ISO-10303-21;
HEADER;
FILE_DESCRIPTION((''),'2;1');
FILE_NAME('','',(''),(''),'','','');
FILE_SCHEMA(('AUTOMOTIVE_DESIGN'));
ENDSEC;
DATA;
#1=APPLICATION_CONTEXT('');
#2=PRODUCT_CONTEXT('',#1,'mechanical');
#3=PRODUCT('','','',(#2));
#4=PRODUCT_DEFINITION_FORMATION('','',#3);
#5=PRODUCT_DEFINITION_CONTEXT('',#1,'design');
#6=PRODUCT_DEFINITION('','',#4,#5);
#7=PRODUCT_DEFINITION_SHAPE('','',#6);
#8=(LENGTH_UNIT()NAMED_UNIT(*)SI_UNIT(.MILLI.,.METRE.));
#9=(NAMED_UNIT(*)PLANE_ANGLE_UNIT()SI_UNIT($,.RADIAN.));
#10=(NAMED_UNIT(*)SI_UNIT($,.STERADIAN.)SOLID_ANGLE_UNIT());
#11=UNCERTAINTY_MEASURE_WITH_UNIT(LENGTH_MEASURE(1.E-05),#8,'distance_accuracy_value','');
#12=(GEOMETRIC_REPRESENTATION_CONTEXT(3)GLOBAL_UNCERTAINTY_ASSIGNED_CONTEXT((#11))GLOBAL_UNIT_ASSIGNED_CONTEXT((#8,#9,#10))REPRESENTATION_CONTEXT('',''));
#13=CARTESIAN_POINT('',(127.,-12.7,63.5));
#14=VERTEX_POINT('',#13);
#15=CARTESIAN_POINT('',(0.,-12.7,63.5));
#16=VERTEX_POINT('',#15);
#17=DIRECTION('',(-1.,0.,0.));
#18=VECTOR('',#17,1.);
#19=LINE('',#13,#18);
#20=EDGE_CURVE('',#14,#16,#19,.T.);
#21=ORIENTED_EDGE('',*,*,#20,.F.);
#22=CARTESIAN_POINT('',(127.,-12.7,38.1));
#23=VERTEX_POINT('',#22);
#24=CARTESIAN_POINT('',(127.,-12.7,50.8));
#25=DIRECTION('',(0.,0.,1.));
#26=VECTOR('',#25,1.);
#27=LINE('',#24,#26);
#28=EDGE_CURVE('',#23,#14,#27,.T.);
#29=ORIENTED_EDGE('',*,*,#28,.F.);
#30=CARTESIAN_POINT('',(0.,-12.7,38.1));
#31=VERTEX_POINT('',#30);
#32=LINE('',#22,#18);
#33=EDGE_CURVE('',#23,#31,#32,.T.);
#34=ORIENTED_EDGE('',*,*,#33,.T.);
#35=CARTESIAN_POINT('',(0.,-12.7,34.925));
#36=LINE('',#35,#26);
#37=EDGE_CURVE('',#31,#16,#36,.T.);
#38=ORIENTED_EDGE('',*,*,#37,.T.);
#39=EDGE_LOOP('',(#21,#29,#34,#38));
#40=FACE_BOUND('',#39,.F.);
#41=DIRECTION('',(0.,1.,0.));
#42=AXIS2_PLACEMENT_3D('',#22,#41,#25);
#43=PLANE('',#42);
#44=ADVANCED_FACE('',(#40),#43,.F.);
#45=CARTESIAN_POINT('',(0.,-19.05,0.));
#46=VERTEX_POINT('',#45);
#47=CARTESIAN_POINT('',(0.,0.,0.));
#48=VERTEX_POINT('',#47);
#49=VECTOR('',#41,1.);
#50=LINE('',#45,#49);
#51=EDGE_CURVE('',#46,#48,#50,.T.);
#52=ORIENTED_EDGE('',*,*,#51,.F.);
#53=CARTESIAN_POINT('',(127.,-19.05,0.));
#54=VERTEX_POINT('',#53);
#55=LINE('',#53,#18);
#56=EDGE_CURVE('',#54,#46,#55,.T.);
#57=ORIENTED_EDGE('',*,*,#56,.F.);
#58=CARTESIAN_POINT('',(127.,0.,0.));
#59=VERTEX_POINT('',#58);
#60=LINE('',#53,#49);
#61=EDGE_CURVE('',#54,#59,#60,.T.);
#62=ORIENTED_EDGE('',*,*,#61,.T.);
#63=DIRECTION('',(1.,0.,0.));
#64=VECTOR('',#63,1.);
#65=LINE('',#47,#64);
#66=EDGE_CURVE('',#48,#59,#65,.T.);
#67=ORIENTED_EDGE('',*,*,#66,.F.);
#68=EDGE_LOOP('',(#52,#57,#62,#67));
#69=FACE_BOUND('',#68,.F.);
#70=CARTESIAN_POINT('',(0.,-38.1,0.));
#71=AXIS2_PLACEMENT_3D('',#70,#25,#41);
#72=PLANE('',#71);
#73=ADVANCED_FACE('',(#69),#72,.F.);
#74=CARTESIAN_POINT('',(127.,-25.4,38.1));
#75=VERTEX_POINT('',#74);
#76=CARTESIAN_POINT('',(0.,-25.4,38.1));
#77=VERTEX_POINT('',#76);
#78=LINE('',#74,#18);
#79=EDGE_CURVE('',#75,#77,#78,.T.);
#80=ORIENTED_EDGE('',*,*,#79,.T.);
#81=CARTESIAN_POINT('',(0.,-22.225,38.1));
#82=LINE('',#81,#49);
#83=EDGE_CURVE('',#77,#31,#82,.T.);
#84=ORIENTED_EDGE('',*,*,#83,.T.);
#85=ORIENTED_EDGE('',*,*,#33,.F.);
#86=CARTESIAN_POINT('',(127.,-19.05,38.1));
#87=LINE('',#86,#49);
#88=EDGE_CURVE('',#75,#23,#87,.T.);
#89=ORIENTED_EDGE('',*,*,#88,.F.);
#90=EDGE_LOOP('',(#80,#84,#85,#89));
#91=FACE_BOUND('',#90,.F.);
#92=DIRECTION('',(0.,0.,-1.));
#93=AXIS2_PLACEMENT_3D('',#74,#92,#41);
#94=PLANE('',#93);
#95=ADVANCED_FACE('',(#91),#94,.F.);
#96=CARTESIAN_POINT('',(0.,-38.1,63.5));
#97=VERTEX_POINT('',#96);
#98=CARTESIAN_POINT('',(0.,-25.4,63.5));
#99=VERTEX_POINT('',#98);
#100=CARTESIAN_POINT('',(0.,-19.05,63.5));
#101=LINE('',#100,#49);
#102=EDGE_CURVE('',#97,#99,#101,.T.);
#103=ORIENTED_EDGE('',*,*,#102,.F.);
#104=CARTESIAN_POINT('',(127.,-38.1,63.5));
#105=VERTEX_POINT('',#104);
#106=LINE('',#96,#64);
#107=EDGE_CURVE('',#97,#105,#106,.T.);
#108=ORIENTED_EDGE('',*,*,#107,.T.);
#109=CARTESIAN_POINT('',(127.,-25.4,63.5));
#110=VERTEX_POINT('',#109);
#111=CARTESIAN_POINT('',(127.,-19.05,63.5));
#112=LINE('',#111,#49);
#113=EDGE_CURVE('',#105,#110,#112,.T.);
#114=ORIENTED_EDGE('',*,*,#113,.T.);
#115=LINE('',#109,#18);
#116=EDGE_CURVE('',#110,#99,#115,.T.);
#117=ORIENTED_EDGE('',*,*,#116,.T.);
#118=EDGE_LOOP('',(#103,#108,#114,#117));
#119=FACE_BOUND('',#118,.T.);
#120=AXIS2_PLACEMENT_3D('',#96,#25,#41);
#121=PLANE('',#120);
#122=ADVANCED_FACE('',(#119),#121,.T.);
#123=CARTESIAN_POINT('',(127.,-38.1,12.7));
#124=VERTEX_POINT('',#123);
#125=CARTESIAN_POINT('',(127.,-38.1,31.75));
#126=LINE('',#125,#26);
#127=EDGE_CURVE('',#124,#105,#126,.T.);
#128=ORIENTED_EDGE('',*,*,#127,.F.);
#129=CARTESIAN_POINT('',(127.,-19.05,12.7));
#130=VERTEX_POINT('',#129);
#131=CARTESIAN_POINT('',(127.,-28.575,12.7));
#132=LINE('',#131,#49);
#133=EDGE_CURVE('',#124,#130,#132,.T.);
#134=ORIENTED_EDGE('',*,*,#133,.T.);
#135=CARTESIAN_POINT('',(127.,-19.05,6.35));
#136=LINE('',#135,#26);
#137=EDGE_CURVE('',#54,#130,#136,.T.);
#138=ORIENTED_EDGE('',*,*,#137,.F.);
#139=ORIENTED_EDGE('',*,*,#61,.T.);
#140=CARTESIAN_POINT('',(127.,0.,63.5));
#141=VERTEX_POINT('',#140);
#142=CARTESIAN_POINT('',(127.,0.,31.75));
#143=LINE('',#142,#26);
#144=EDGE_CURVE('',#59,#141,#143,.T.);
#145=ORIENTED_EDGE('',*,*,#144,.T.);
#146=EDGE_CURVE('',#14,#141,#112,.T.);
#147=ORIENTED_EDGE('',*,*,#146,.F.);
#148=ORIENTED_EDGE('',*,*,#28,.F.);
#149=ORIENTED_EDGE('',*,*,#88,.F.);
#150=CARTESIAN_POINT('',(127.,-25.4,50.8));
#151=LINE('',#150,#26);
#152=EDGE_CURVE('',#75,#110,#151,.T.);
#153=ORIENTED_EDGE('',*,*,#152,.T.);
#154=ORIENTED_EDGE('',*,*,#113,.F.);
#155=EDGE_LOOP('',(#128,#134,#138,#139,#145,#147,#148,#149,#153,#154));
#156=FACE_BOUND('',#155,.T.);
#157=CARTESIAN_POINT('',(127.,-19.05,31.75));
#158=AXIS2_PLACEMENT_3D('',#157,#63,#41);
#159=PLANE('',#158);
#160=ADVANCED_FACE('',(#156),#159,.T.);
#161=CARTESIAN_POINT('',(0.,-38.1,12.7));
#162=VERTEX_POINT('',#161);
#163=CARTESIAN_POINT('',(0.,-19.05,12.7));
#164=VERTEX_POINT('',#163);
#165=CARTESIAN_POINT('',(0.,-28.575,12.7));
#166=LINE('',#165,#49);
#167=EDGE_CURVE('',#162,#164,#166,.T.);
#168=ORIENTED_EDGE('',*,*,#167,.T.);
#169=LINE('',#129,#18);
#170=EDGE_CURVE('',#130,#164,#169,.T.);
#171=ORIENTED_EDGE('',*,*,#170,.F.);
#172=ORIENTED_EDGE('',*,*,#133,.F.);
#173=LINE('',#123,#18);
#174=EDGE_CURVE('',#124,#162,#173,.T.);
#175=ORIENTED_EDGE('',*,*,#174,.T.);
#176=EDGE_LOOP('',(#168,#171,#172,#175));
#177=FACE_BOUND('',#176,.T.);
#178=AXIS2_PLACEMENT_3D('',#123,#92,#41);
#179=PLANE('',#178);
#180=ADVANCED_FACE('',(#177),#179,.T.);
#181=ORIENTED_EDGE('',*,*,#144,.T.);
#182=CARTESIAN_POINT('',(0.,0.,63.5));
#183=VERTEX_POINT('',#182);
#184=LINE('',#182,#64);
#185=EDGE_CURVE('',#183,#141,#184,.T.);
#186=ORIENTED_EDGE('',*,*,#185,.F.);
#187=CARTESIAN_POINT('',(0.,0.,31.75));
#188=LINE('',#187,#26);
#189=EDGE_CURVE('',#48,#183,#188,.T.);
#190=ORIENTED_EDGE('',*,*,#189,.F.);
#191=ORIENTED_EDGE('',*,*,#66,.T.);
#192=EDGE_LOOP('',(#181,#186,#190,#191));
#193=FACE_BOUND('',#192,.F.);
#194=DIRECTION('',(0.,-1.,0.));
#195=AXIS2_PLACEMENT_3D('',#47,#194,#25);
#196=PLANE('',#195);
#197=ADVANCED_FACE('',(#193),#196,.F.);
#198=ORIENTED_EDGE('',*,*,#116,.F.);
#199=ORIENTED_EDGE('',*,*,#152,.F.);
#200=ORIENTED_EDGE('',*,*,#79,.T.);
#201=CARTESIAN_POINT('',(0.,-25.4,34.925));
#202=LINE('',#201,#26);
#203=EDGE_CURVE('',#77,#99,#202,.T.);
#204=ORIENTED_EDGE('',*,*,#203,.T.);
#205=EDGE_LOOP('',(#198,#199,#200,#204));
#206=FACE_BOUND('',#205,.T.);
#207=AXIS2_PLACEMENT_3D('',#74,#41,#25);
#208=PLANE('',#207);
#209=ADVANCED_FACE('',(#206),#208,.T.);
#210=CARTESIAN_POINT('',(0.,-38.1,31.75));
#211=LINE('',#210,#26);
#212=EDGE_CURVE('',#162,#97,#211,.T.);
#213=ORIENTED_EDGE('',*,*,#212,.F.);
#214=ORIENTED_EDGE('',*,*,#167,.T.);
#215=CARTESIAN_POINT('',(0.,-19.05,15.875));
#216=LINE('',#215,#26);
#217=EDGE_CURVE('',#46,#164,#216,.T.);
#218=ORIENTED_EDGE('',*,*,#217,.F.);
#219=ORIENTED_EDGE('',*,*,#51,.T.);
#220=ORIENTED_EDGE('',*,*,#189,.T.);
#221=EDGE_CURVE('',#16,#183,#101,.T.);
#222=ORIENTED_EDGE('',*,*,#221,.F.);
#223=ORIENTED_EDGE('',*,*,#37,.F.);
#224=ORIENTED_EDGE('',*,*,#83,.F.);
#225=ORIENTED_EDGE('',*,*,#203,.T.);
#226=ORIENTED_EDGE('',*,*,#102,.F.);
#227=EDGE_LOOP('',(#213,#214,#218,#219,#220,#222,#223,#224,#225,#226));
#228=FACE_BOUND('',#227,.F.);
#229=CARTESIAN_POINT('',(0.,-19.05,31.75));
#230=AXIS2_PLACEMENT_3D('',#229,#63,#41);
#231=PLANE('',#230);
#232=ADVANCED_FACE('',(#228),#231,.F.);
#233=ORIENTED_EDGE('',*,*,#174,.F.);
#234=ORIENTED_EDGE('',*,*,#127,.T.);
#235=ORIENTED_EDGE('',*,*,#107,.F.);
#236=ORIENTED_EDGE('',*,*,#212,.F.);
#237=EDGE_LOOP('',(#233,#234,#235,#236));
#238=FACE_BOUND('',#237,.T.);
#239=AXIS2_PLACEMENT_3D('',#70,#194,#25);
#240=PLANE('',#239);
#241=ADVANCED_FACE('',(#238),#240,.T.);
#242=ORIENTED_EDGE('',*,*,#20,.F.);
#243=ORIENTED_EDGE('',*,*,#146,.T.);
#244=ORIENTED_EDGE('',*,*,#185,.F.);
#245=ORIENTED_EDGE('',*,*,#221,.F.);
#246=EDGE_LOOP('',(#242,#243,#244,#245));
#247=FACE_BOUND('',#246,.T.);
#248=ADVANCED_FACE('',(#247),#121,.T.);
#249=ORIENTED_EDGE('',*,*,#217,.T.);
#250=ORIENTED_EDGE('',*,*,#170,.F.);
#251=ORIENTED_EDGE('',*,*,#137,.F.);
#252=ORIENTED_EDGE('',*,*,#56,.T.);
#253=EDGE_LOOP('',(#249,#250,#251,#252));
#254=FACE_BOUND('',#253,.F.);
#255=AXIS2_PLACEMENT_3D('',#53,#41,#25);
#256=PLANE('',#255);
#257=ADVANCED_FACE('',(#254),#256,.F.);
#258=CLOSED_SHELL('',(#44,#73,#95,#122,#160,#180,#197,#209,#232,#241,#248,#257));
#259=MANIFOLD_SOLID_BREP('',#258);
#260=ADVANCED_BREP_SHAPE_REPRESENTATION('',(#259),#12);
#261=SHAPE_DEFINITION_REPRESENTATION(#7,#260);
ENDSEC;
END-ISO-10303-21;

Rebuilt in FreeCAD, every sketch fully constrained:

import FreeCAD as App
import Part
import Sketcher

V = App.Vector
Q = App.Units.Quantity

doc = App.newDocument("Part")
params = doc.addObject("Spreadsheet::Sheet", "Params")
for row, (alias, value) in enumerate([
    ("sketch1_width", "1.5 in"),
    ("sketch1_height", "2.5 in"),
    ("pad1_length", "5 in"),
    ("sketch2_height", "0.5 in"),
    ("sketch2_width", "0.75 in"),
    ("sketch3_height", "1 in"),
    ("sketch3_width", "0.5 in"),
], start=1):
    params.set(f"A{row}", alias)
    params.set(f"B{row}", "=" + value)
    params.setAlias(f"B{row}", alias)

body = doc.addObject("PartDesign::Body", "Body")

# Sketch on YZ plane
sketch1 = body.newObject("Sketcher::SketchObject", "Sketch")
sketch1.AttachmentSupport = (doc.getObject("YZ_Plane"), [""])
sketch1.MapMode = "FlatFace"
sketch1.addGeometry([
    Part.LineSegment(V(-38, 64, 0), V(-38, 0, 0)),
    Part.LineSegment(V(-38, 0, 0), V(0, 0, 0)),
    Part.LineSegment(V(0, 0, 0), V(0, 64, 0)),
    Part.LineSegment(V(0, 64, 0), V(-38, 64, 0)),
], False)
sketch1.addConstraint([
    Sketcher.Constraint("Coincident", 0, 2, 1, 1),
    Sketcher.Constraint("Coincident", 1, 2, 2, 1),
    Sketcher.Constraint("Coincident", 2, 2, 3, 1),
    Sketcher.Constraint("Coincident", 3, 2, 0, 1),
    Sketcher.Constraint("Vertical", 0),
    Sketcher.Constraint("Horizontal", 1),
    Sketcher.Constraint("Vertical", 2),
    Sketcher.Constraint("Horizontal", 3),
    Sketcher.Constraint("Coincident", 1, 2, -1, 1),
    Sketcher.Constraint("DistanceX", 1, 1, 1, 2, Q("1.5 in")),
    Sketcher.Constraint("DistanceY", 0, 2, 0, 1, Q("2.5 in")),
])
sketch1.setExpression("Constraints[9]", "Params.sketch1_width")
sketch1.setExpression("Constraints[10]", "Params.sketch1_height")
pad1 = body.newObject("PartDesign::Pad", "Pad")
pad1.Profile = sketch1
pad1.setExpression("Length", "Params.pad1_length")

# Sketch on YZ plane
sketch2 = body.newObject("Sketcher::SketchObject", "Sketch001")
sketch2.AttachmentSupport = (doc.getObject("YZ_Plane"), [""])
sketch2.MapMode = "FlatFace"
sketch2.AttachmentOffset = App.Placement(V(0, 0, 5 * 25.4), App.Rotation())
sketch2.addGeometry([
    Part.LineSegment(V(-38, 13, 0), V(-38, 0, 0)),
    Part.LineSegment(V(-38, 0, 0), V(-19, 0, 0)),
    Part.LineSegment(V(-19, 0, 0), V(-19, 13, 0)),
    Part.LineSegment(V(-19, 13, 0), V(-38, 13, 0)),
], False)
sketch2.addConstraint([
    Sketcher.Constraint("Coincident", 0, 2, 1, 1),
    Sketcher.Constraint("Coincident", 1, 2, 2, 1),
    Sketcher.Constraint("Coincident", 2, 2, 3, 1),
    Sketcher.Constraint("Coincident", 3, 2, 0, 1),
    Sketcher.Constraint("Vertical", 0),
    Sketcher.Constraint("Horizontal", 1),
    Sketcher.Constraint("Vertical", 2),
    Sketcher.Constraint("Horizontal", 3),
    Sketcher.Constraint("PointOnObject", 0, 2, -1),
    Sketcher.Constraint("DistanceY", 0, 2, 0, 1, Q("0.5 in")),
    Sketcher.Constraint("DistanceX", 1, 1, 1, 2, Q("0.75 in")),
    Sketcher.Constraint("DistanceX", 0, 2, -1, 1, Q("1.5 in")),
])
sketch2.setExpression("Constraints[9]", "Params.sketch2_height")
sketch2.setExpression("Constraints[10]", "Params.sketch2_width")
pocket1 = body.newObject("PartDesign::Pocket", "Pocket")
pocket1.Profile = sketch2
pocket1.Type = "ThroughAll"

# Sketch on YZ plane
sketch3 = body.newObject("Sketcher::SketchObject", "Sketch002")
sketch3.AttachmentSupport = (doc.getObject("YZ_Plane"), [""])
sketch3.MapMode = "FlatFace"
sketch3.AttachmentOffset = App.Placement(V(0, 0, 5 * 25.4), App.Rotation())
sketch3.addGeometry([
    Part.LineSegment(V(-25, 64, 0), V(-25, 38, 0)),
    Part.LineSegment(V(-25, 38, 0), V(-13, 38, 0)),
    Part.LineSegment(V(-13, 38, 0), V(-13, 64, 0)),
    Part.LineSegment(V(-13, 64, 0), V(-25, 64, 0)),
], False)
sketch3.addConstraint([
    Sketcher.Constraint("Coincident", 0, 2, 1, 1),
    Sketcher.Constraint("Coincident", 1, 2, 2, 1),
    Sketcher.Constraint("Coincident", 2, 2, 3, 1),
    Sketcher.Constraint("Coincident", 3, 2, 0, 1),
    Sketcher.Constraint("Vertical", 0),
    Sketcher.Constraint("Horizontal", 1),
    Sketcher.Constraint("Vertical", 2),
    Sketcher.Constraint("Horizontal", 3),
    Sketcher.Constraint("DistanceY", 0, 2, 0, 1, Q("1 in")),
    Sketcher.Constraint("DistanceX", 1, 1, 1, 2, Q("0.5 in")),
    Sketcher.Constraint("DistanceX", 0, 2, -1, 1, Q("1 in")),
    Sketcher.Constraint("DistanceY", -1, 1, 0, 2, Q("1.5 in")),
])
sketch3.setExpression("Constraints[8]", "Params.sketch3_height")
sketch3.setExpression("Constraints[9]", "Params.sketch3_width")
pocket2 = body.newObject("PartDesign::Pocket", "Pocket001")
pocket2.Profile = sketch3
pocket2.Type = "ThroughAll"

doc.recompute()
